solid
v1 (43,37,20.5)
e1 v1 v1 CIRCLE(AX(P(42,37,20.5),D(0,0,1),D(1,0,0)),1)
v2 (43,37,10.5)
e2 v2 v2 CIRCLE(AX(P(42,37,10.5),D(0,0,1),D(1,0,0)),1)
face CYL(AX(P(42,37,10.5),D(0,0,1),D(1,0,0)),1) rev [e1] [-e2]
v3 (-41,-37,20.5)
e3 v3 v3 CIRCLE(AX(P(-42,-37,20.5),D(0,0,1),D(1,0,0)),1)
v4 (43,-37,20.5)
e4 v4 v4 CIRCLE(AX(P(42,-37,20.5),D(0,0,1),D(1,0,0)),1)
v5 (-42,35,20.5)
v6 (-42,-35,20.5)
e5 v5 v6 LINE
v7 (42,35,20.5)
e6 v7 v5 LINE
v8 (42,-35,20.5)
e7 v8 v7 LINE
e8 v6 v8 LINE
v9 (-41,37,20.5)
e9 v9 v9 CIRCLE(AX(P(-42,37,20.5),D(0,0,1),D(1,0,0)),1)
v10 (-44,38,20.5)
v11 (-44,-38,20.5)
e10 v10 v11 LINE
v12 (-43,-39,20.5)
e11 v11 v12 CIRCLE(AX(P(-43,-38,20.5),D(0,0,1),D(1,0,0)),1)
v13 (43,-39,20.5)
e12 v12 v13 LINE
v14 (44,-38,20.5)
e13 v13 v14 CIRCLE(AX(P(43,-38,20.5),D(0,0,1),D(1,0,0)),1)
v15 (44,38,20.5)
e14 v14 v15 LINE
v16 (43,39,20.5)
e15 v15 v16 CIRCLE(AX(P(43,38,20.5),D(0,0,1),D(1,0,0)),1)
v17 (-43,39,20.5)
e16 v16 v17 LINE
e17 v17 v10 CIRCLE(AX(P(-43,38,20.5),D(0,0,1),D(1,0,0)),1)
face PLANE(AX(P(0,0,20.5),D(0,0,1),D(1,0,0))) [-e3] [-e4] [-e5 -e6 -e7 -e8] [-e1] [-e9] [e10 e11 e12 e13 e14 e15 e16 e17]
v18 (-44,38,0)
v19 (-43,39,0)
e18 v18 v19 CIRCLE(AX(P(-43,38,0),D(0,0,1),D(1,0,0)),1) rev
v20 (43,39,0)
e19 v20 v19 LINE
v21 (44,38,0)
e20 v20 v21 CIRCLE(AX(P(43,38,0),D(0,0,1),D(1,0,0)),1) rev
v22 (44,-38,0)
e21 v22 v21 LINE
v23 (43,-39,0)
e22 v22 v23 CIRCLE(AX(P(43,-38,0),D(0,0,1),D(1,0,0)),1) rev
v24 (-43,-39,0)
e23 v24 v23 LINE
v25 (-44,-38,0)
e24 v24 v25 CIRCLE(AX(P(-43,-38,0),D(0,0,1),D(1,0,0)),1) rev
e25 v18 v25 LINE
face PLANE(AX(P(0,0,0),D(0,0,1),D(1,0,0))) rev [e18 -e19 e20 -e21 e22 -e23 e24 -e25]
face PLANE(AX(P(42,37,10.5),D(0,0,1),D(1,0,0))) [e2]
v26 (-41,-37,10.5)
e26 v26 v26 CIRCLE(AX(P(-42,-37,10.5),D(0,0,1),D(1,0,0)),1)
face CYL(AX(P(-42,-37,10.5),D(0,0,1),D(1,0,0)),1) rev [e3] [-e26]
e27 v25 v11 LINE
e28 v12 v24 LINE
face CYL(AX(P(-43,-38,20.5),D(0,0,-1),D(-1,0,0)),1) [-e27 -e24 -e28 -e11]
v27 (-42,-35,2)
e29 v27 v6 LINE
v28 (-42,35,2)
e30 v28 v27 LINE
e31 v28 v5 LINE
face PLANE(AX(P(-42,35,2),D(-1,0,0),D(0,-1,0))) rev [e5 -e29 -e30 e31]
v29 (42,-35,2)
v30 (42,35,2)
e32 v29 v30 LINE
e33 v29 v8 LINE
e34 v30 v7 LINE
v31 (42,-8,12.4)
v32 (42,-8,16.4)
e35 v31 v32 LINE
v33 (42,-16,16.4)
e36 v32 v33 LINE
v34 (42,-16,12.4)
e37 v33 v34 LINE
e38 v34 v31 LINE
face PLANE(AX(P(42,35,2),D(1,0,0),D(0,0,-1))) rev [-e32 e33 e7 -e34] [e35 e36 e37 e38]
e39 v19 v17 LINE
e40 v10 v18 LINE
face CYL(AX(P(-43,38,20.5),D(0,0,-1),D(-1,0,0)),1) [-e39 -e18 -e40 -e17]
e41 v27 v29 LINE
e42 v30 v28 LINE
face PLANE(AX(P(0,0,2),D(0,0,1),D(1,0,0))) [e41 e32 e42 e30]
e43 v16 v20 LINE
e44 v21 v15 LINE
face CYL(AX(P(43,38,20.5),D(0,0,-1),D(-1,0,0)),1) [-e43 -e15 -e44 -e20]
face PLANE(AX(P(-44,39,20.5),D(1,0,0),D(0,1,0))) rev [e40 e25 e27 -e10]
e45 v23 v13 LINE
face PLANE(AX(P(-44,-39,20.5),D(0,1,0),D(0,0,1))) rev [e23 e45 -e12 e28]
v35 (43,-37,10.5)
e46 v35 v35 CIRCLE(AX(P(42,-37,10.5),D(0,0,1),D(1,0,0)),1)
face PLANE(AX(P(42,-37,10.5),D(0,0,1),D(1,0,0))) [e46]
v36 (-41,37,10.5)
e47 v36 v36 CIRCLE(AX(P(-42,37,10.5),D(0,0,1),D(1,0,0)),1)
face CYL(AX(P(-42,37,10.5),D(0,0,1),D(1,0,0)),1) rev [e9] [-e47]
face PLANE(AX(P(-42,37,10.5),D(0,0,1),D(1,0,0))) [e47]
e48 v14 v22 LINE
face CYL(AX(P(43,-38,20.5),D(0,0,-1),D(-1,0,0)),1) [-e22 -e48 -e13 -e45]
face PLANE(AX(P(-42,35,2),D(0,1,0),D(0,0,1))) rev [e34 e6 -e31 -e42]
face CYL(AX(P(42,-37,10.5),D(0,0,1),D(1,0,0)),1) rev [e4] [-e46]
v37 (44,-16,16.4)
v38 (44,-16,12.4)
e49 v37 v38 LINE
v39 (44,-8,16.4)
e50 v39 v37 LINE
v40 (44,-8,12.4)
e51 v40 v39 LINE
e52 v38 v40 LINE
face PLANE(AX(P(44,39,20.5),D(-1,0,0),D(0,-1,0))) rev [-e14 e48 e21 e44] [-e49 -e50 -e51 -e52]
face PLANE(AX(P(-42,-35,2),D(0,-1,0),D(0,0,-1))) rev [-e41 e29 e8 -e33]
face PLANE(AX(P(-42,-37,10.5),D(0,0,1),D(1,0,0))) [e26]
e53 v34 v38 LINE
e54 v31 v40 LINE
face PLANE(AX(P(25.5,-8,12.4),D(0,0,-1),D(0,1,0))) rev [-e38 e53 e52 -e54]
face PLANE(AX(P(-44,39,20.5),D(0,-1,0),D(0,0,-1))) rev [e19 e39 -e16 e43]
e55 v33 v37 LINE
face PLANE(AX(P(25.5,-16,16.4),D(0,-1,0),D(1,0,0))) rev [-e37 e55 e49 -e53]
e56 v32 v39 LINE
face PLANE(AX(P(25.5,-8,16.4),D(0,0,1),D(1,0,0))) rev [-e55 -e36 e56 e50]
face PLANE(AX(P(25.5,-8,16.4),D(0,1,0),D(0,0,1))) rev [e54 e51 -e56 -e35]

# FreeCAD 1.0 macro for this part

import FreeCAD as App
import Part
import Sketcher
Q = App.Units.Quantity


def edges_at(feature, points):
    """Names of the edges that pass closest to the given points."""
    edges = feature.Shape.Edges
    near = lambda p: min(range(len(edges)), key=lambda i: edges[i].distToShape(Part.Vertex(*p))[0])
    return sorted({f"Edge{near(p) + 1}" for p in points})

doc = App.newDocument("Part")
body = doc.addObject("PartDesign::Body", "Body")

sketch1 = body.newObject("Sketcher::SketchObject", "Sketch")
sketch1.AttachmentSupport = (doc.getObject("XY_Plane"), [""])
sketch1.MapMode = "FlatFace"
sketch1.addGeometry(Part.LineSegment(App.Vector(-44, 39, 0), App.Vector(-44, -39, 0)), False)
sketch1.addGeometry(Part.LineSegment(App.Vector(-44, -39, 0), App.Vector(44, -39, 0)), False)
sketch1.addGeometry(Part.LineSegment(App.Vector(44, -39, 0), App.Vector(44, 39, 0)), False)
sketch1.addGeometry(Part.LineSegment(App.Vector(44, 39, 0), App.Vector(-44, 39, 0)), False)
sketch1.addConstraint(Sketcher.Constraint("Coincident", 0, 2, 1, 1))
sketch1.addConstraint(Sketcher.Constraint("Coincident", 1, 2, 2, 1))
sketch1.addConstraint(Sketcher.Constraint("Coincident", 2, 2, 3, 1))
sketch1.addConstraint(Sketcher.Constraint("Coincident", 3, 2, 0, 1))
sketch1.addConstraint(Sketcher.Constraint("Vertical", 0))
sketch1.addConstraint(Sketcher.Constraint("Horizontal", 1))
sketch1.addConstraint(Sketcher.Constraint("Vertical", 2))
sketch1.addConstraint(Sketcher.Constraint("Horizontal", 3))
sketch1.addConstraint(Sketcher.Constraint("Symmetric", 0, 2, 2, 2, -1, 1))
sketch1.addConstraint(Sketcher.Constraint("DistanceX", 1, 1, 1, 2, Q("88 mm")))
sketch1.addConstraint(Sketcher.Constraint("DistanceY", 0, 2, 0, 1, Q("78 mm")))
pad1 = body.newObject("PartDesign::Pad", "Pad")
pad1.Profile = sketch1
pad1.Length = 20.5

sketch2 = body.newObject("Sketcher::SketchObject", "Sketch001")
sketch2.AttachmentSupport = (doc.getObject("XY_Plane"), [""])
sketch2.MapMode = "FlatFace"
sketch2.AttachmentOffset = App.Placement(App.Vector(0, 0, 20.5), App.Rotation())
sketch2.addGeometry(Part.LineSegment(App.Vector(-42, 35, 0), App.Vector(-42, -35, 0)), False)
sketch2.addGeometry(Part.LineSegment(App.Vector(-42, -35, 0), App.Vector(42, -35, 0)), False)
sketch2.addGeometry(Part.LineSegment(App.Vector(42, -35, 0), App.Vector(42, 35, 0)), False)
sketch2.addGeometry(Part.LineSegment(App.Vector(42, 35, 0), App.Vector(-42, 35, 0)), False)
sketch2.addConstraint(Sketcher.Constraint("Coincident", 0, 2, 1, 1))
sketch2.addConstraint(Sketcher.Constraint("Coincident", 1, 2, 2, 1))
sketch2.addConstraint(Sketcher.Constraint("Coincident", 2, 2, 3, 1))
sketch2.addConstraint(Sketcher.Constraint("Coincident", 3, 2, 0, 1))
sketch2.addConstraint(Sketcher.Constraint("Vertical", 0))
sketch2.addConstraint(Sketcher.Constraint("Horizontal", 1))
sketch2.addConstraint(Sketcher.Constraint("Vertical", 2))
sketch2.addConstraint(Sketcher.Constraint("Horizontal", 3))
sketch2.addConstraint(Sketcher.Constraint("Symmetric", 0, 2, 2, 2, -1, 1))
sketch2.addConstraint(Sketcher.Constraint("DistanceX", 1, 1, 1, 2, Q("84 mm")))
sketch2.addConstraint(Sketcher.Constraint("DistanceY", 0, 2, 0, 1, Q("70 mm")))
pocket1 = body.newObject("PartDesign::Pocket", "Pocket")
pocket1.Profile = sketch2
pocket1.Length = 18.5

sketch3 = body.newObject("Sketcher::SketchObject", "Sketch002")
sketch3.AttachmentSupport = (doc.getObject("YZ_Plane"), [""])
sketch3.MapMode = "FlatFace"
sketch3.AttachmentOffset = App.Placement(App.Vector(0, 0, 44), App.Rotation())
sketch3.addGeometry(Part.LineSegment(App.Vector(-8, 16.4, 0), App.Vector(-16, 16.4, 0)), False)
sketch3.addGeometry(Part.LineSegment(App.Vector(-16, 16.4, 0), App.Vector(-16, 12.4, 0)), False)
sketch3.addGeometry(Part.LineSegment(App.Vector(-16, 12.4, 0), App.Vector(-8, 12.4, 0)), False)
sketch3.addGeometry(Part.LineSegment(App.Vector(-8, 12.4, 0), App.Vector(-8, 16.4, 0)), False)
sketch3.addConstraint(Sketcher.Constraint("Coincident", 0, 2, 1, 1))
sketch3.addConstraint(Sketcher.Constraint("Coincident", 1, 2, 2, 1))
sketch3.addConstraint(Sketcher.Constraint("Coincident", 2, 2, 3, 1))
sketch3.addConstraint(Sketcher.Constraint("Coincident", 3, 2, 0, 1))
sketch3.addConstraint(Sketcher.Constraint("Horizontal", 0))
sketch3.addConstraint(Sketcher.Constraint("Vertical", 1))
sketch3.addConstraint(Sketcher.Constraint("Horizontal", 2))
sketch3.addConstraint(Sketcher.Constraint("Vertical", 3))
sketch3.addConstraint(Sketcher.Constraint("DistanceX", 0, 2, 0, 1, Q("8 mm")))
sketch3.addConstraint(Sketcher.Constraint("DistanceY", 1, 2, 1, 1, Q("4 mm")))
sketch3.addConstraint(Sketcher.Constraint("DistanceX", 0, 2, -1, 1, Q("16 mm")))
sketch3.addConstraint(Sketcher.Constraint("DistanceY", -1, 1, 0, 2, Q("16.4 mm")))
pocket2 = body.newObject("PartDesign::Pocket", "Pocket001")
pocket2.Profile = sketch3
pocket2.Length = 18.5

sketch4 = body.newObject("Sketcher::SketchObject", "Sketch003")
sketch4.AttachmentSupport = (doc.getObject("XY_Plane"), [""])
sketch4.MapMode = "FlatFace"
sketch4.AttachmentOffset = App.Placement(App.Vector(0, 0, 20.5), App.Rotation())
sketch4.addGeometry(Part.Circle(App.Vector(-42, 37, 0), App.Vector(0, 0, 1), 1), False)
sketch4.addGeometry(Part.Circle(App.Vector(-42, -37, 0), App.Vector(0, 0, 1), 1), False)
sketch4.addGeometry(Part.Circle(App.Vector(42, -37, 0), App.Vector(0, 0, 1), 1), False)
sketch4.addGeometry(Part.Circle(App.Vector(42, 37, 0), App.Vector(0, 0, 1), 1), False)
sketch4.addConstraint(Sketcher.Constraint("Equal", 0, 1))
sketch4.addConstraint(Sketcher.Constraint("Equal", 1, 2))
sketch4.addConstraint(Sketcher.Constraint("Equal", 2, 3))
sketch4.addConstraint(Sketcher.Constraint("Symmetric", 0, 3, 2, 3, -1, 1))
sketch4.addConstraint(Sketcher.Constraint("Symmetric", 1, 3, 3, 3, -1, 1))
sketch4.addConstraint(Sketcher.Constraint("Symmetric", 1, 3, 2, 3, -2))
sketch4.addConstraint(Sketcher.Constraint("Diameter", 0, Q("2 mm")))
sketch4.addConstraint(Sketcher.Constraint("DistanceX", 0, 3, -1, 1, Q("42 mm")))
sketch4.addConstraint(Sketcher.Constraint("DistanceY", -1, 1, 0, 3, Q("37 mm")))
pocket3 = body.newObject("PartDesign::Pocket", "Pocket002")
pocket3.Profile = sketch4
pocket3.Length = 10
doc.recompute()

fillet = body.newObject("PartDesign::Fillet", "Fillet")
fillet.Base = (pocket3, edges_at(pocket3, [
    (44, -39, 10.25),
    (-44, -39, 10.25),
    (-44, 39, 10.25),
    (44, 39, 10.25),
]))
fillet.Radius = 1

doc.recompute()
